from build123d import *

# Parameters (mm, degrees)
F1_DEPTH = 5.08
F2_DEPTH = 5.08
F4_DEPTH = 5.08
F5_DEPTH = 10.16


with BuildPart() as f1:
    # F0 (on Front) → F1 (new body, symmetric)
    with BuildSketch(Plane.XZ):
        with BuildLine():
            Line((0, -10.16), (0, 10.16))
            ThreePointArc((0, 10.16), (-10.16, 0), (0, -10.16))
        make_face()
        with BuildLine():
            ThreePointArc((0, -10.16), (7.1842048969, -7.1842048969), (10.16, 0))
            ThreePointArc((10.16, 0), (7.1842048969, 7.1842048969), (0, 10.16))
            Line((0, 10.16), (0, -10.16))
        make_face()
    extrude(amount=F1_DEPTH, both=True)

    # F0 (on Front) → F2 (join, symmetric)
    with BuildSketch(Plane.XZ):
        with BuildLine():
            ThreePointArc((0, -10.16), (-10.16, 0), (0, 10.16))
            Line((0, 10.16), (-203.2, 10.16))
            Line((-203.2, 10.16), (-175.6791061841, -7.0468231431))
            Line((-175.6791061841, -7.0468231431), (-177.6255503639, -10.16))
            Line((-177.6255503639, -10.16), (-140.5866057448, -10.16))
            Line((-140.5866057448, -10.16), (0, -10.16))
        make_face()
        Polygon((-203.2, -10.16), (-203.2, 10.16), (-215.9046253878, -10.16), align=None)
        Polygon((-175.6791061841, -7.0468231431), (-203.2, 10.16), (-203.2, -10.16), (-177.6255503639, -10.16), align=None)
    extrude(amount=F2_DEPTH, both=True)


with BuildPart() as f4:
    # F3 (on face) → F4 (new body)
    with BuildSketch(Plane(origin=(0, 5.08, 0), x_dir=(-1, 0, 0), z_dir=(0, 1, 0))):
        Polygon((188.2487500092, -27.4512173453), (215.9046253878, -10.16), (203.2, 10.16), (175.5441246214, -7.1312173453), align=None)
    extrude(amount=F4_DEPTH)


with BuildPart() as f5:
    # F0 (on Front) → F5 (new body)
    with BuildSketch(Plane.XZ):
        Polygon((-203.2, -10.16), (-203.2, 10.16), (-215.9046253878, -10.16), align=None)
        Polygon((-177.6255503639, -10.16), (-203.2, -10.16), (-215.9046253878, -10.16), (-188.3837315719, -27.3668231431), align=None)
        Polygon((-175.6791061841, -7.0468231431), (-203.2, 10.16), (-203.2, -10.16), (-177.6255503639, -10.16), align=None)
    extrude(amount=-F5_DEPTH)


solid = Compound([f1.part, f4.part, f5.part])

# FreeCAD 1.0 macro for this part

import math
import FreeCAD as App
import Part
import Sketcher
from FreeCAD import Vector
Q = App.Units.Quantity

doc = App.newDocument("Part")
body = doc.addObject("PartDesign::Body", "Body")

sketch1 = body.newObject("Sketcher::SketchObject", "Sketch")
sketch1.AttachmentSupport = (doc.getObject("XZ_Plane"), [""])
sketch1.MapMode = "FlatFace"
sketch1.addGeometry([
    Part.ArcOfCircle(Part.Circle(Vector(0, 0, 0), Vector(0, 0, 1), 10.16), math.radians(90), math.radians(270)),
    Part.ArcOfCircle(Part.Circle(Vector(0, 0, 0), Vector(0, 0, 1), 10.16), math.radians(-90), math.radians(0)),
    Part.ArcOfCircle(Part.Circle(Vector(0, 0, 0), Vector(0, 0, 1), 10.16), math.radians(0), math.radians(90)),
], False)
sketch1.addConstraint([
    Sketcher.Constraint("Tangent", 0, 2, 1, 1),
    Sketcher.Constraint("Tangent", 1, 2, 2, 1),
    Sketcher.Constraint("Tangent", 2, 2, 0, 1),
    Sketcher.Constraint("Coincident", 0, 3, -1, 1),
    Sketcher.Constraint("PointOnObject", 0, 2, -2),
    Sketcher.Constraint("PointOnObject", 1, 2, -1),
    Sketcher.Constraint("PointOnObject", 2, 2, -2),
    Sketcher.Constraint("Radius", 0, Q("0.4 in")),
])
pad1 = body.newObject("PartDesign::Pad", "Pad")
pad1.Profile = sketch1
pad1.Length = Q("0.4 in")
pad1.Midplane = True

sketch2 = body.newObject("Sketcher::SketchObject", "Sketch001")
sketch2.AttachmentSupport = (doc.getObject("XZ_Plane"), [""])
sketch2.MapMode = "FlatFace"
sketch2.addGeometry([
    Part.ArcOfCircle(Part.Circle(Vector(0, 0, 0), Vector(0, 0, 1), 10.16), math.radians(90), math.radians(270)),
    Part.LineSegment(Vector(0, 10.16, 0), Vector(-203.2, 10.16, 0)),
    Part.LineSegment(Vector(-203.2, 10.16, 0), Vector(-215.904625, -10.16, 0)),
    Part.LineSegment(Vector(-215.904625, -10.16, 0), Vector(0, -10.16, 0)),
], False)
sketch2.addConstraint([
    Sketcher.Constraint("Tangent", 0, 1, 1, 1),
    Sketcher.Constraint("Coincident", 1, 2, 2, 1),
    Sketcher.Constraint("Coincident", 2, 2, 3, 1),
    Sketcher.Constraint("Tangent", 3, 2, 0, 2),
    Sketcher.Constraint("Horizontal", 1),
    Sketcher.Constraint("Horizontal", 3),
    Sketcher.Constraint("Coincident", 0, 3, -1, 1),
    Sketcher.Constraint("Radius", 0, Q("0.4 in")),
    Sketcher.Constraint("DistanceX", 1, 2, 1, 1, Q("8 in")),
    Sketcher.Constraint("DistanceX", 3, 1, 3, 2, 215.904625),
])
pad2 = body.newObject("PartDesign::Pad", "Pad001")
pad2.Profile = sketch2
pad2.Length = Q("0.4 in")
pad2.Midplane = True
body2 = doc.addObject("PartDesign::Body", "Body001")

sketch3 = body2.newObject("Sketcher::SketchObject", "Sketch002")
sketch3.AttachmentSupport = (doc.getObject("XZ_Plane001"), [""])
sketch3.MapMode = "FlatFace"
sketch3.AttachmentOffset = App.Placement(Vector(0, 0, -0.2 * 25.4), App.Rotation())
sketch3.addGeometry([
    Part.LineSegment(Vector(-188.24875, -27.451217, 0), Vector(-215.904625, -10.16, 0)),
    Part.LineSegment(Vector(-215.904625, -10.16, 0), Vector(-203.2, 10.16, 0)),
    Part.LineSegment(Vector(-203.2, 10.16, 0), Vector(-175.544125, -7.131217, 0)),
    Part.LineSegment(Vector(-175.544125, -7.131217, 0), Vector(-188.24875, -27.451217, 0)),
], False)
sketch3.addConstraint([
    Sketcher.Constraint("Coincident", 0, 2, 1, 1),
    Sketcher.Constraint("Coincident", 1, 2, 2, 1),
    Sketcher.Constraint("Coincident", 2, 2, 3, 1),
    Sketcher.Constraint("Coincident", 3, 2, 0, 1),
    Sketcher.Constraint("Perpendicular", 0, 1),
    Sketcher.Constraint("Perpendicular", 1, 2),
    Sketcher.Constraint("Perpendicular", 2, 3),
    Sketcher.Constraint("DistanceX", 1, 2, -1, 1, Q("8 in")),
    Sketcher.Constraint("DistanceY", 0, 2, -1, 1, Q("0.4 in")),
    Sketcher.Constraint("DistanceY", -1, 1, 1, 2, Q("0.4 in")),
    Sketcher.Constraint("DistanceX", 0, 2, 2, 2, 40.360501),
    Sketcher.Constraint("DistanceX", 3, 2, -1, 1, 188.24875),
])
pad3 = body2.newObject("PartDesign::Pad", "Pad002")
pad3.Profile = sketch3
pad3.Length = Q("0.2 in")
pad3.Reversed = True
body3 = doc.addObject("PartDesign::Body", "Body002")

sketch4 = body3.newObject("Sketcher::SketchObject", "Sketch003")
sketch4.AttachmentSupport = (doc.getObject("XZ_Plane002"), [""])
sketch4.MapMode = "FlatFace"
sketch4.addGeometry([
    Part.LineSegment(Vector(-203.2, 10.16, 0), Vector(-215.904625, -10.16, 0)),
    Part.LineSegment(Vector(-215.904625, -10.16, 0), Vector(-188.383732, -27.366823, 0)),
    Part.LineSegment(Vector(-188.383732, -27.366823, 0), Vector(-177.62555, -10.16, 0)),
    Part.LineSegment(Vector(-177.62555, -10.16, 0), Vector(-175.679106, -7.046823, 0)),
    Part.LineSegment(Vector(-175.679106, -7.046823, 0), Vector(-203.2, 10.16, 0)),
], False)
sketch4.addConstraint([
    Sketcher.Constraint("Coincident", 0, 2, 1, 1),
    Sketcher.Constraint("Coincident", 1, 2, 2, 1),
    Sketcher.Constraint("Coincident", 2, 2, 3, 1),
    Sketcher.Constraint("Coincident", 3, 2, 4, 1),
    Sketcher.Constraint("Coincident", 4, 2, 0, 1),
    Sketcher.Constraint("Perpendicular", 0, 1),
    Sketcher.Constraint("Perpendicular", 1, 2),
    Sketcher.Constraint("Parallel", 2, 3),
    Sketcher.Constraint("Perpendicular", 3, 4),
    Sketcher.Constraint("Horizontal", 0, 2, 2, 2),
    Sketcher.Constraint("DistanceX", 4, 2, -1, 1, Q("8 in")),
    Sketcher.Constraint("DistanceY", 0, 2, -1, 1, Q("0.4 in")),
    Sketcher.Constraint("DistanceY", -1, 1, 4, 2, Q("0.4 in")),
    Sketcher.Constraint("Distance", 1, 32.45727),
    Sketcher.Constraint("Distance", 2, 20.293182),
])
pad4 = body3.newObject("PartDesign::Pad", "Pad003")
pad4.Profile = sketch4
pad4.Length = Q("0.4 in")
pad4.Reversed = True

doc.recompute()
